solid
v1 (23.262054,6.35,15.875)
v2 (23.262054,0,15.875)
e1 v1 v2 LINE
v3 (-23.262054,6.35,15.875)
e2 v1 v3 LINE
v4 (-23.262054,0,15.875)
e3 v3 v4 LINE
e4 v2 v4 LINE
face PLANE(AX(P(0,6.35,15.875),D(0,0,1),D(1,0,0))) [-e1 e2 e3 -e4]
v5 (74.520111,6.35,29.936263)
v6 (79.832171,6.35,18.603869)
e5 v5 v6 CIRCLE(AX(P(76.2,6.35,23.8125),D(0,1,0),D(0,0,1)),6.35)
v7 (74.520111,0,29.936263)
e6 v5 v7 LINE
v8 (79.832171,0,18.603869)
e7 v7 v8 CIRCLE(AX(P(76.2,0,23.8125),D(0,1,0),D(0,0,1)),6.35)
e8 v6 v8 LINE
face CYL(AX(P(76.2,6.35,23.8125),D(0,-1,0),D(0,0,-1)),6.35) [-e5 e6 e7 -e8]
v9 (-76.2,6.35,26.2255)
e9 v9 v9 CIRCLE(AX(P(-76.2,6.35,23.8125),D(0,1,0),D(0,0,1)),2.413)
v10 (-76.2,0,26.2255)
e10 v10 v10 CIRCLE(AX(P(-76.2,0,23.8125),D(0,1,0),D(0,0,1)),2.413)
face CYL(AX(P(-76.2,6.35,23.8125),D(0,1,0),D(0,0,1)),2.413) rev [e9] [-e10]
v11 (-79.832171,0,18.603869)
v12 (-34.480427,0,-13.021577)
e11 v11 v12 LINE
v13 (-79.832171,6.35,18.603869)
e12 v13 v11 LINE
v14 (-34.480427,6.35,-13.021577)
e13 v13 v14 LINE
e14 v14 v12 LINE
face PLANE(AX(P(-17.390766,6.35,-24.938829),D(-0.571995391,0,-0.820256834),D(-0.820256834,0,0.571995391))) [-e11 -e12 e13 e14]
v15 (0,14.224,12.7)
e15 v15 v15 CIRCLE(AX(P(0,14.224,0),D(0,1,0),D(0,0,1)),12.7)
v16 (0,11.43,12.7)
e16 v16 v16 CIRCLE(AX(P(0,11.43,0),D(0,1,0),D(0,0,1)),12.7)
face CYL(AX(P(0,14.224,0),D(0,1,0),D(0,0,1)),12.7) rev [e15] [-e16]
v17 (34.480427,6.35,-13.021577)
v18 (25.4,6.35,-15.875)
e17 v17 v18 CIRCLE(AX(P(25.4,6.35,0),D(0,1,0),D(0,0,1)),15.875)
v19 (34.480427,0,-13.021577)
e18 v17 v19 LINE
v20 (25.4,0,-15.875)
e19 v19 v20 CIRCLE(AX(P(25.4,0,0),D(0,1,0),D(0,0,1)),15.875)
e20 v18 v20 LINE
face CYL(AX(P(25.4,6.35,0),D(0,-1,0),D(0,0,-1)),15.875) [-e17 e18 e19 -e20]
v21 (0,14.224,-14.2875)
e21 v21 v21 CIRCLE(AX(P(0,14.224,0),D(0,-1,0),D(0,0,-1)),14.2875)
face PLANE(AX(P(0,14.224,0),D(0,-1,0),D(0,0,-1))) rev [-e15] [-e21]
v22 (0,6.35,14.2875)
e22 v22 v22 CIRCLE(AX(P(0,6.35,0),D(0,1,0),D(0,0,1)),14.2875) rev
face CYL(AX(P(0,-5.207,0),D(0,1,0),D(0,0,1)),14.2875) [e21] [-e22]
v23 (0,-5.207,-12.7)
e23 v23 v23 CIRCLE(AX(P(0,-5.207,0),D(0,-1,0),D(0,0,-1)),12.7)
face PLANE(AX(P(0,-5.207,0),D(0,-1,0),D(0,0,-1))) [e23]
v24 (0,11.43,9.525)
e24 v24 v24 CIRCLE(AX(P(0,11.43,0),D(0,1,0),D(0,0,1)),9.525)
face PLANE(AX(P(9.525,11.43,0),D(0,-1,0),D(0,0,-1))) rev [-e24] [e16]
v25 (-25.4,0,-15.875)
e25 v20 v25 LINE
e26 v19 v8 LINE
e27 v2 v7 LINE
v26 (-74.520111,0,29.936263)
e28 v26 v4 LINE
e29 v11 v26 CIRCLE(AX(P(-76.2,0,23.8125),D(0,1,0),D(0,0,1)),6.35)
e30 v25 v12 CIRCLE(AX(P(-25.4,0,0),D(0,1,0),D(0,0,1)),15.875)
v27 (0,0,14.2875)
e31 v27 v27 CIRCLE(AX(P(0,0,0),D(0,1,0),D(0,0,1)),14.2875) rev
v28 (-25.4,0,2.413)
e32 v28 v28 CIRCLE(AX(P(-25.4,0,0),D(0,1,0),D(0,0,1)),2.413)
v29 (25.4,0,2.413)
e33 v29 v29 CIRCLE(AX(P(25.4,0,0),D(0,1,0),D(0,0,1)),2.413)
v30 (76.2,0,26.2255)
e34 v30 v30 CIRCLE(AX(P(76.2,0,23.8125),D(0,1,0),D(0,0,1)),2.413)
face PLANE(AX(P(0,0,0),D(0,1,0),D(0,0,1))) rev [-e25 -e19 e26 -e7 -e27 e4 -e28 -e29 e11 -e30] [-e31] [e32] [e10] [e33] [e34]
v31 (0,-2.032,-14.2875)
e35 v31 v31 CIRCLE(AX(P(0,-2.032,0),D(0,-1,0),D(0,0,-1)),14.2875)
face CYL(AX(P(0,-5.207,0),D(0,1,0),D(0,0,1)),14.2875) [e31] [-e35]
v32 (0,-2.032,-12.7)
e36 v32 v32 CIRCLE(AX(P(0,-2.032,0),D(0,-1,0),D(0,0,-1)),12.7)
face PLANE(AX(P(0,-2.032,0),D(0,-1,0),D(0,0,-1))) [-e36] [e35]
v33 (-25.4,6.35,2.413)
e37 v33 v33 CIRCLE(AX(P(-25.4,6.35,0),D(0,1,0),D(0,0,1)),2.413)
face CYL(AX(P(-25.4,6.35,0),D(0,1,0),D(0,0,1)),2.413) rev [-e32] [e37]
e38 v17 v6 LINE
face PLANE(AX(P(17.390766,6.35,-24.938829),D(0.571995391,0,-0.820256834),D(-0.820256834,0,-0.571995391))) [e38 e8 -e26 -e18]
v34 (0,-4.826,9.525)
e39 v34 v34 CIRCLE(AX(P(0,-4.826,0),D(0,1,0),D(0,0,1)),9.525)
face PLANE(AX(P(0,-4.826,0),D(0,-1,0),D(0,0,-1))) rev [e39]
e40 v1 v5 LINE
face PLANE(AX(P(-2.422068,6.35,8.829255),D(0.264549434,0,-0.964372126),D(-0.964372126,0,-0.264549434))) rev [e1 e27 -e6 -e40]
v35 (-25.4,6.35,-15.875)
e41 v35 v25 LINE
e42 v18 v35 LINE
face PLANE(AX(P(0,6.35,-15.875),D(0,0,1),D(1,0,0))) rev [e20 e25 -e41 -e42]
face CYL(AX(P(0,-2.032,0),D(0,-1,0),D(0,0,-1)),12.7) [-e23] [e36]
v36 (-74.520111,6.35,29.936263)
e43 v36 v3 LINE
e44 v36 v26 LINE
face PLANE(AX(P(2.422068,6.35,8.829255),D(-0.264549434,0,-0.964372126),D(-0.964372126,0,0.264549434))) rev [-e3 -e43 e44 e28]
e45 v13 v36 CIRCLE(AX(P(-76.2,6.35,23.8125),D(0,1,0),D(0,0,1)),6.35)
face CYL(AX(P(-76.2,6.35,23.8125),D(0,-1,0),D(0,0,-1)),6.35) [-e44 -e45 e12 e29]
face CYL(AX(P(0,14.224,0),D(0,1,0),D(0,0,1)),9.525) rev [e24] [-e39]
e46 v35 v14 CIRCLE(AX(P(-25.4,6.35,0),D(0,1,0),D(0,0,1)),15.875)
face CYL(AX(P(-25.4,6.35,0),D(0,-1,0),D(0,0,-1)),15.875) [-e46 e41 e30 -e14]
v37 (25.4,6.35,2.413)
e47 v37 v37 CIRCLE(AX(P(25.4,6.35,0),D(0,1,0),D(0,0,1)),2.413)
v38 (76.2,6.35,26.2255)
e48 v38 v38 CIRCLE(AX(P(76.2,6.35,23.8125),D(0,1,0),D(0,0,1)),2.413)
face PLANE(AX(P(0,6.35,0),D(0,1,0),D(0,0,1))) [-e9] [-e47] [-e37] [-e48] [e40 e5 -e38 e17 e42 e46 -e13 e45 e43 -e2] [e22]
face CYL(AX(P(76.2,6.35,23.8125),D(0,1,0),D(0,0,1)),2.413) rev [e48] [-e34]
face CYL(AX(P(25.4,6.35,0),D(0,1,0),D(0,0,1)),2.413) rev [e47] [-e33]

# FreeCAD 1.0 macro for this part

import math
import FreeCAD as App
import Part
import Sketcher
from FreeCAD import Vector
Q = App.Units.Quantity

doc = App.newDocument("Part")
body = doc.addObject("PartDesign::Body", "Body")

sketch1 = body.newObject("Sketcher::SketchObject", "Sketch")
sketch1.AttachmentSupport = (doc.getObject("XZ_Plane"), [""])
sketch1.MapMode = "FlatFace"
sketch1.addGeometry(Part.LineSegment(Vector(80, 19, 0), Vector(34, -13, 0)), False)
sketch1.addGeometry(Part.ArcOfCircle(Part.Circle(Vector(25, 0, 0), Vector(0, 0, 1), 16), math.radians(-90), math.radians(-55)), False)
sketch1.addGeometry(Part.LineSegment(Vector(25, -16, 0), Vector(-25, -16, 0)), False)
sketch1.addGeometry(Part.ArcOfCircle(Part.Circle(Vector(-25, 0, 0), Vector(0, 0, 1), 16), math.radians(-125), math.radians(-90)), False)
sketch1.addGeometry(Part.LineSegment(Vector(-34, -13, 0), Vector(-80, 19, 0)), False)
sketch1.addGeometry(Part.ArcOfCircle(Part.Circle(Vector(-76, 24, 0), Vector(0, 0, 1), 6), math.radians(75), math.radians(235)), False)
sketch1.addGeometry(Part.LineSegment(Vector(-75, 30, 0), Vector(-23, 16, 0)), False)
sketch1.addGeometry(Part.LineSegment(Vector(-23, 16, 0), Vector(23, 16, 0)), False)
sketch1.addGeometry(Part.LineSegment(Vector(23, 16, 0), Vector(75, 30, 0)), False)
sketch1.addGeometry(Part.ArcOfCircle(Part.Circle(Vector(76, 24, 0), Vector(0, 0, 1), 6), math.radians(-55), math.radians(105)), False)
sketch1.addConstraint(Sketcher.Constraint("Tangent", 0, 2, 1, 2))
sketch1.addConstraint(Sketcher.Constraint("Tangent", 1, 1, 2, 1))
sketch1.addConstraint(Sketcher.Constraint("Tangent", 2, 2, 3, 2))
sketch1.addConstraint(Sketcher.Constraint("Tangent", 3, 1, 4, 1))
sketch1.addConstraint(Sketcher.Constraint("Tangent", 4, 2, 5, 2))
sketch1.addConstraint(Sketcher.Constraint("Tangent", 5, 1, 6, 1))
sketch1.addConstraint(Sketcher.Constraint("Coincident", 6, 2, 7, 1))
sketch1.addConstraint(Sketcher.Constraint("Coincident", 7, 2, 8, 1))
sketch1.addConstraint(Sketcher.Constraint("Tangent", 8, 2, 9, 2))
sketch1.addConstraint(Sketcher.Constraint("Tangent", 9, 1, 0, 1))
sketch1.addConstraint(Sketcher.Constraint("Horizontal", 2))
sketch1.addConstraint(Sketcher.Constraint("Horizontal", 7))
sketch1.addConstraint(Sketcher.Constraint("Equal", 1, 3))
sketch1.addConstraint(Sketcher.Constraint("Equal", 5, 9))
sketch1.addConstraint(Sketcher.Constraint("Symmetric", 1, 3, 3, 3, -1, 1))
sketch1.addConstraint(Sketcher.Constraint("Symmetric", 5, 3, 9, 3, -2))
sketch1.addConstraint(Sketcher.Constraint("Horizontal", 5, 1, 8, 2))
sketch1.addConstraint(Sketcher.Constraint("DistanceX", 2, 2, 2, 1, Q("2 in")))
sketch1.addConstraint(Sketcher.Constraint("Radius", 5, Q("0.25 in")))
sketch1.addConstraint(Sketcher.Constraint("DistanceX", 5, 3, -1, 1, Q("3 in")))
sketch1.addConstraint(Sketcher.Constraint("Radius", 1, Q("0.625 in")))
sketch1.addConstraint(Sketcher.Constraint("DistanceY", 2, 2, 6, 2, Q("1.25 in")))
sketch1.addConstraint(Sketcher.Constraint("DistanceY", -1, 1, 5, 3, Q("0.9375 in")))
sketch1.addConstraint(Sketcher.Constraint("Distance", 6, Q("53.151741 mm")))
pad1 = body.newObject("PartDesign::Pad", "Pad")
pad1.Profile = sketch1
pad1.Length = Q("0.25 in")
pad1.Reversed = True

sketch2 = body.newObject("Sketcher::SketchObject", "Sketch001")
sketch2.AttachmentSupport = (doc.getObject("XZ_Plane"), [""])
sketch2.MapMode = "FlatFace"
sketch2.AttachmentOffset = App.Placement(Vector(0, 0, -0.56 * 25.4), App.Rotation())
sketch2.addGeometry(Part.Circle(Vector(0, 0, 0), Vector(0, 0, 1), 14), False)
sketch2.addConstraint(Sketcher.Constraint("Coincident", 0, 3, -1, 1))
sketch2.addConstraint(Sketcher.Constraint("Diameter", 0, Q("1.125 in")))
pad2 = body.newObject("PartDesign::Pad", "Pad001")
pad2.Profile = sketch2
pad2.Length = Q("0.765 in")

sketch3 = body.newObject("Sketcher::SketchObject", "Sketch002")
sketch3.AttachmentSupport = (doc.getObject("XZ_Plane"), [""])
sketch3.MapMode = "FlatFace"
sketch3.AttachmentOffset = App.Placement(Vector(0, 0, -0.56 * 25.4), App.Rotation())
sketch3.addGeometry(Part.Circle(Vector(0, 0, 0), Vector(0, 0, 1), 10), False)
sketch3.addConstraint(Sketcher.Constraint("Coincident", 0, 3, -1, 1))
sketch3.addConstraint(Sketcher.Constraint("Diameter", 0, Q("0.75 in")))
doc.recompute()
hole = body.newObject("PartDesign::Hole", "Hole")
hole.Profile = sketch3
hole.ThreadType = "None"
hole.Diameter = Q("0.75 in")
hole.DepthType = "Dimension"
hole.Depth = Q("0.75 in")
hole.DrillPoint = "Flat"
hole.HoleCutType = "Counterbore"
hole.HoleCutDiameter = Q("1 in")
hole.HoleCutDepth = Q("0.11 in")
hole.Reversed = True

sketch4 = body.newObject("Sketcher::SketchObject", "Sketch003")
sketch4.AttachmentSupport = (doc.getObject("XZ_Plane"), [""])
sketch4.MapMode = "FlatFace"
sketch4.AttachmentOffset = App.Placement(Vector(0, 0, -0.25 * 25.4), App.Rotation())
sketch4.addGeometry(Part.Circle(Vector(-25.4, 0, 0), Vector(0, 0, 1), 2.4), False)
sketch4.addGeometry(Part.Circle(Vector(25.4, 0, 0), Vector(0, 0, 1), 2.4), False)
sketch4.addGeometry(Part.Circle(Vector(-76.2, 23.8, 0), Vector(0, 0, 1), 2.4), False)
sketch4.addGeometry(Part.Circle(Vector(76.2, 23.8, 0), Vector(0, 0, 1), 2.4), False)
sketch4.addConstraint(Sketcher.Constraint("Equal", 0, 1))
sketch4.addConstraint(Sketcher.Constraint("Equal", 1, 2))
sketch4.addConstraint(Sketcher.Constraint("Equal", 2, 3))
sketch4.addConstraint(Sketcher.Constraint("Symmetric", 0, 3, 1, 3, -1, 1))
sketch4.addConstraint(Sketcher.Constraint("Symmetric", 2, 3, 3, 3, -2))
sketch4.addConstraint(Sketcher.Constraint("PointOnObject", 0, 3, -1))
sketch4.addConstraint(Sketcher.Constraint("Diameter", 0, Q("0.19 in")))
sketch4.addConstraint(Sketcher.Constraint("DistanceX", 0, 3, -1, 1, Q("1 in")))
sketch4.addConstraint(Sketcher.Constraint("DistanceX", 2, 3, -1, 1, Q("3 in")))
sketch4.addConstraint(Sketcher.Constraint("DistanceY", -1, 1, 2, 3, Q("0.9375 in")))
doc.recompute()
hole2 = body.newObject("PartDesign::Hole", "Hole001")
hole2.Profile = sketch4
hole2.ThreadType = "None"
hole2.Diameter = Q("0.19 in")
hole2.DepthType = "ThroughAll"
hole2.Reversed = True

sketch5 = body.newObject("Sketcher::SketchObject", "Sketch004")
sketch5.AttachmentSupport = (doc.getObject("XZ_Plane"), [""])
sketch5.MapMode = "FlatFace"
sketch5.AttachmentOffset = App.Placement(Vector(0, 0, 0.205 * 25.4), App.Rotation())
sketch5.addGeometry(Part.Circle(Vector(0, 0, 0), Vector(0, 0, 1), 14), False)
sketch5.addGeometry(Part.Circle(Vector(0, 0, 0), Vector(0, 0, 1), 13), False)
sketch5.addConstraint(Sketcher.Constraint("Coincident", 0, 3, -1, 1))
sketch5.addConstraint(Sketcher.Constraint("Coincident", 1, 3, -1, 1))
sketch5.addConstraint(Sketcher.Constraint("Diameter", 1, Q("1 in")))
sketch5.addConstraint(Sketcher.Constraint("Diameter", 0, Q("1.125 in")))
pocket1 = body.newObject("PartDesign::Pocket", "Pocket")
pocket1.Profile = sketch5
pocket1.Length = Q("0.125 in")

doc.recompute()
